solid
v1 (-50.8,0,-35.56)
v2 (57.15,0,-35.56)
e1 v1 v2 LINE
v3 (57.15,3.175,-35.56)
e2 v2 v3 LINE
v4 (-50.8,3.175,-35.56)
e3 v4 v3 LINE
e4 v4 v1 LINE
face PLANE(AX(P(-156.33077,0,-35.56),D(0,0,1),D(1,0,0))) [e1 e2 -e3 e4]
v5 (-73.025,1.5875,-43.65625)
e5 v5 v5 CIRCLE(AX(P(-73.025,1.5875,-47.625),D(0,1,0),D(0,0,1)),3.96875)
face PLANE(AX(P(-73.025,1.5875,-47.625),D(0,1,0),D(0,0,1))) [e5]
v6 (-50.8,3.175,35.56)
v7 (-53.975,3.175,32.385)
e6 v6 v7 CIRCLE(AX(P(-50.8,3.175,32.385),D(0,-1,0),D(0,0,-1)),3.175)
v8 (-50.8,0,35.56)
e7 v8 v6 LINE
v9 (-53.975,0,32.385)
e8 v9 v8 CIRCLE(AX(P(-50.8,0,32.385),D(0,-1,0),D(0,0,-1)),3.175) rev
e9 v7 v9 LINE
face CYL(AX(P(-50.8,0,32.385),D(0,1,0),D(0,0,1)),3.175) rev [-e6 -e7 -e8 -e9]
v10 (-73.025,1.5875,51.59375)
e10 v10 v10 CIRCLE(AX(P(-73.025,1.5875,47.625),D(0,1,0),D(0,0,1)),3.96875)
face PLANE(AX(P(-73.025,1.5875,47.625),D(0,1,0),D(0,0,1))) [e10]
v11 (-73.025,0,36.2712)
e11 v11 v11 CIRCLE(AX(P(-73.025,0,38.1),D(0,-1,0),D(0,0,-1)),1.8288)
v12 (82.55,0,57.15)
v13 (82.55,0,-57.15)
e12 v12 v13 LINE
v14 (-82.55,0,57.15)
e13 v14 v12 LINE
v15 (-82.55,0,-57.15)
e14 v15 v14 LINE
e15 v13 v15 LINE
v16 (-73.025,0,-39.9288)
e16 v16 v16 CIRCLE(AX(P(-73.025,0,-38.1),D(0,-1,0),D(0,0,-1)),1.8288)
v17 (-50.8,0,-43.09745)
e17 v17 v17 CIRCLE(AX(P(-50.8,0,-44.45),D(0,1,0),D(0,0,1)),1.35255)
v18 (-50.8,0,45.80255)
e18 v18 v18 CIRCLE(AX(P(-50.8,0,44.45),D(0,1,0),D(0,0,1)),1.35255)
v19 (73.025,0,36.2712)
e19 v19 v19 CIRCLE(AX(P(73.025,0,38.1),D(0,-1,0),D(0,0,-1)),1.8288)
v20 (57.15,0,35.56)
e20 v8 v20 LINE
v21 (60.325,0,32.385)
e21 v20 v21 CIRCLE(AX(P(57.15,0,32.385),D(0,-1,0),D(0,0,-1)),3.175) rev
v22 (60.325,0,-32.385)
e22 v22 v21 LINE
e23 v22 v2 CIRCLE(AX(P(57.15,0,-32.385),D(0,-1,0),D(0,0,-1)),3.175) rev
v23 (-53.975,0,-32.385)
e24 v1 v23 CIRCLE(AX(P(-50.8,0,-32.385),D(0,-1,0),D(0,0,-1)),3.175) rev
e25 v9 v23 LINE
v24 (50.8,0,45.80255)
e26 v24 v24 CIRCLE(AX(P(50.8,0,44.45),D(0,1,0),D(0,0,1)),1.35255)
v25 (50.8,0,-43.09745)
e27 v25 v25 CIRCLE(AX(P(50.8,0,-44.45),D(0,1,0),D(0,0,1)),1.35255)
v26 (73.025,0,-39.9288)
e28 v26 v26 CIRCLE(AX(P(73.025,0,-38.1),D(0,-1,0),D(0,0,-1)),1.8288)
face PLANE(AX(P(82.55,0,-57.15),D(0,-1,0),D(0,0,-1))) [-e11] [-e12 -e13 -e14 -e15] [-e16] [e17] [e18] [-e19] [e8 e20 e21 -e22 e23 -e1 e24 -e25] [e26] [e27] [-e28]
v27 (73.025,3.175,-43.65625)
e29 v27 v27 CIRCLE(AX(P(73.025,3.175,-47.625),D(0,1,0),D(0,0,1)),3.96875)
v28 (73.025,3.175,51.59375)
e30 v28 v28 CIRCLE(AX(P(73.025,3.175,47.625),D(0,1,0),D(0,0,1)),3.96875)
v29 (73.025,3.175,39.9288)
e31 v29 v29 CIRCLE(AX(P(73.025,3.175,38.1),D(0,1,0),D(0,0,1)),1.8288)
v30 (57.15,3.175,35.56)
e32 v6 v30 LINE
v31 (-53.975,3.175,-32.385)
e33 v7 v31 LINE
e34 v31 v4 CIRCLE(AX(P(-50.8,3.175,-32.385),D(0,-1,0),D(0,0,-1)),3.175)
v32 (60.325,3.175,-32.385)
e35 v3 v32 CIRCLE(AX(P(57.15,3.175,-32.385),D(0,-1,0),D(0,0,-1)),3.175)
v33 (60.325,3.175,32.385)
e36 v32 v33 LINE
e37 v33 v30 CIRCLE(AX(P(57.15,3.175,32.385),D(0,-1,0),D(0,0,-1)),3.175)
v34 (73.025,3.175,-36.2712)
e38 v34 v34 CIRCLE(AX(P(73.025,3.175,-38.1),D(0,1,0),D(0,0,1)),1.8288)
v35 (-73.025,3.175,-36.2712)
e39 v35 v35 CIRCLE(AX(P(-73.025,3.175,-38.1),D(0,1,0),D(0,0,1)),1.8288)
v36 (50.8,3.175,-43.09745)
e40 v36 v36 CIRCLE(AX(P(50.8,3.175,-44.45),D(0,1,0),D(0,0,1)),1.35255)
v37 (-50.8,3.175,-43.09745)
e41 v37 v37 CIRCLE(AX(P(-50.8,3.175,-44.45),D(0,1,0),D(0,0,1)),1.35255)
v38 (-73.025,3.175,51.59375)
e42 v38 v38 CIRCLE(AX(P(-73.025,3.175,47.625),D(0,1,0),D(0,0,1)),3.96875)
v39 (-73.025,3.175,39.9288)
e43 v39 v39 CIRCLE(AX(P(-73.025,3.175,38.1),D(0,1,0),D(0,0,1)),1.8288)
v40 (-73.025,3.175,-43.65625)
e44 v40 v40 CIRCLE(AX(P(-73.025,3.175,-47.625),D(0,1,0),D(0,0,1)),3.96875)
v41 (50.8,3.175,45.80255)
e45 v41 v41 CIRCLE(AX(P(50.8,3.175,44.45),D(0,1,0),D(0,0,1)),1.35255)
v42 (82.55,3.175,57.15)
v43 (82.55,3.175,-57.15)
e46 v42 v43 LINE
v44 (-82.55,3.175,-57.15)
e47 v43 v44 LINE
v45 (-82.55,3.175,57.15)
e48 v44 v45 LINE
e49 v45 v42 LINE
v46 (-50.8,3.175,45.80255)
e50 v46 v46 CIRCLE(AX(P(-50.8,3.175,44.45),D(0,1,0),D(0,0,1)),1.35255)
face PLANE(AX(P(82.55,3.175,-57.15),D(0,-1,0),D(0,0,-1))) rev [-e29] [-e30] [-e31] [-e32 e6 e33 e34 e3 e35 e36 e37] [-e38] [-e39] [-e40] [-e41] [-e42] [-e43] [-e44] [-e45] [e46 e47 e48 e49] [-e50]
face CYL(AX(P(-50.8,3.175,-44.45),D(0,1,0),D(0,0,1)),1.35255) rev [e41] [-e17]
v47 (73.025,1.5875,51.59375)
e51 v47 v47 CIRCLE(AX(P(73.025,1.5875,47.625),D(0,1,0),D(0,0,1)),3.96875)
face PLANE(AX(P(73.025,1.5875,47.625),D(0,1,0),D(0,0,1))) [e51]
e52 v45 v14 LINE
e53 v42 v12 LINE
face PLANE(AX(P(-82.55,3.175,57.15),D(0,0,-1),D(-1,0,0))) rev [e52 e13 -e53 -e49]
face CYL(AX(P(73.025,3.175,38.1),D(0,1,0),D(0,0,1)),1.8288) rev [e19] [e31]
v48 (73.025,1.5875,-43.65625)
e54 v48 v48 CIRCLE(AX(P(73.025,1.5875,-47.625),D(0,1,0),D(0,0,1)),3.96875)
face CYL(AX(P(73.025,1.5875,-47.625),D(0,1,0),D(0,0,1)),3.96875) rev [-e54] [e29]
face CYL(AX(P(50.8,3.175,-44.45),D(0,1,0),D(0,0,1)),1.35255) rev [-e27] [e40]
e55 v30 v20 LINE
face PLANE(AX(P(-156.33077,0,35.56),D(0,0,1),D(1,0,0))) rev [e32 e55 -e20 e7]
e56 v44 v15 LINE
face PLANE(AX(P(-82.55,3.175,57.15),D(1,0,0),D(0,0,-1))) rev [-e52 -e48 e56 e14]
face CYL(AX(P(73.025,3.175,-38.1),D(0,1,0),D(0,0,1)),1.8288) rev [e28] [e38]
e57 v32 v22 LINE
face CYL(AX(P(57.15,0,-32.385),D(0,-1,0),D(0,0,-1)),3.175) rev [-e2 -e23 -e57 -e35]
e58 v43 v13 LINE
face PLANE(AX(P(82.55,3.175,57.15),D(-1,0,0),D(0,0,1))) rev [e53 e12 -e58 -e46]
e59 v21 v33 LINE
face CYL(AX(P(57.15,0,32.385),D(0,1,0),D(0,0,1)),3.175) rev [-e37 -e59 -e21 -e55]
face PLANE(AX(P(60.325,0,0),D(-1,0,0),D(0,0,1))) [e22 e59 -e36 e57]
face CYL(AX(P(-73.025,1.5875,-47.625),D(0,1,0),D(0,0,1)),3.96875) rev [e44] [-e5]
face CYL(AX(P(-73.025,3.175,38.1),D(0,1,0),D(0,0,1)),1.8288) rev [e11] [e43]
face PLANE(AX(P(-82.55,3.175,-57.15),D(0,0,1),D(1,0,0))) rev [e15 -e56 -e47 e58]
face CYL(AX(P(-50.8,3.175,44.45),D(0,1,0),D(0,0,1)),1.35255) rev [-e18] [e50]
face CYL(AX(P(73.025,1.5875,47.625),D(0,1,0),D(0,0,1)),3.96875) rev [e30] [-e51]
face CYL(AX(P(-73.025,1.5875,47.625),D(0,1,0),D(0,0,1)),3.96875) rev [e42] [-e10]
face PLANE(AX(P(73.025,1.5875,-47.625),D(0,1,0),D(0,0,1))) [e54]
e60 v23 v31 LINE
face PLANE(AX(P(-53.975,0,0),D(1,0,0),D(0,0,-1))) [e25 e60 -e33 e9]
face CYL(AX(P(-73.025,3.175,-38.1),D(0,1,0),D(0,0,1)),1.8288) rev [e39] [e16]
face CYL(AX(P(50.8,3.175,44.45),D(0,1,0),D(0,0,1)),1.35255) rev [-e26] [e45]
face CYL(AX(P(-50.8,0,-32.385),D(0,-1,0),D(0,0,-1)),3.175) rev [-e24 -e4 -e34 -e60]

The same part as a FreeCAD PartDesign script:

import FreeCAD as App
import Part
import Sketcher
Q = App.Units.Quantity


def edges_at(feature, points):
    """Names of the edges that pass closest to the given points."""
    edges = feature.Shape.Edges
    near = lambda p: min(range(len(edges)), key=lambda i: edges[i].distToShape(Part.Vertex(*p))[0])
    return sorted({f"Edge{near(p) + 1}" for p in points})

doc = App.newDocument("Part")
body = doc.addObject("PartDesign::Body", "Body")

# Sketch on XZ plane
sketch1 = doc.addObject("Sketcher::SketchObject", "Sketch")
body.addObject(sketch1)
sketch1.AttachmentSupport = (doc.XZ_Plane, [""])
sketch1.MapMode = "FlatFace"
sketch1.addGeometry([
    Part.LineSegment(App.Vector(-83, -57, 0), App.Vector(-83, 57, 0)),
    Part.LineSegment(App.Vector(-83, 57, 0), App.Vector(83, 57, 0)),
    Part.LineSegment(App.Vector(83, 57, 0), App.Vector(83, -57, 0)),
    Part.LineSegment(App.Vector(83, -57, 0), App.Vector(-83, -57, 0)),
], False)
sketch1.addConstraint([
    Sketcher.Constraint("Coincident", 0, 2, 1, 1),
    Sketcher.Constraint("Coincident", 1, 2, 2, 1),
    Sketcher.Constraint("Coincident", 2, 2, 3, 1),
    Sketcher.Constraint("Coincident", 3, 2, 0, 1),
    Sketcher.Constraint("Vertical", 0),
    Sketcher.Constraint("Horizontal", 1),
    Sketcher.Constraint("Vertical", 2),
    Sketcher.Constraint("Horizontal", 3),
    Sketcher.Constraint("Symmetric", 0, 2, 2, 2, -1, 1),
    Sketcher.Constraint("DistanceX", 1, 1, 1, 2, Q("6.5 in")),
    Sketcher.Constraint("DistanceY", 0, 1, 0, 2, Q("4.5 in")),
])
pad1 = doc.addObject("PartDesign::Pad", "Pad")
body.addObject(pad1)
pad1.Profile = sketch1
pad1.Length = Q("0.125 in")
pad1.Reversed = True

# Sketch on XZ plane
sketch2 = doc.addObject("Sketcher::SketchObject", "Sketch001")
body.addObject(sketch2)
sketch2.AttachmentSupport = (doc.XZ_Plane, [""])
sketch2.MapMode = "FlatFace"
sketch2.AttachmentOffset = App.Placement(App.Vector(0, 0, -0.125 * 25.4), App.Rotation())
sketch2.addGeometry([
    Part.Circle(App.Vector(-73, -47.6, 0), App.Vector(0, 0, 1), 4),
    Part.Circle(App.Vector(-73, 47.6, 0), App.Vector(0, 0, 1), 4),
    Part.Circle(App.Vector(73, -47.6, 0), App.Vector(0, 0, 1), 4),
    Part.Circle(App.Vector(73, 47.6, 0), App.Vector(0, 0, 1), 4),
], False)
sketch2.addConstraint([
    Sketcher.Constraint("Equal", 0, 1),
    Sketcher.Constraint("Equal", 1, 2),
    Sketcher.Constraint("Equal", 2, 3),
    Sketcher.Constraint("Symmetric", 1, 3, 2, 3, -1, 1),
    Sketcher.Constraint("Symmetric", 0, 3, 3, 3, -1, 1),
    Sketcher.Constraint("Symmetric", 0, 3, 2, 3, -2),
    Sketcher.Constraint("Diameter", 0, Q("0.3125 in")),
    Sketcher.Constraint("DistanceY", 0, 3, 1, 3, Q("3.75 in")),
    Sketcher.Constraint("DistanceX", 0, 3, 2, 3, Q("5.75 in")),
])
pocket1 = doc.addObject("PartDesign::Pocket", "Pocket")
body.addObject(pocket1)
pocket1.Profile = sketch2
pocket1.Length = Q("0.0625 in")
pocket1.Reversed = True

# Sketch on XZ plane
sketch3 = doc.addObject("Sketcher::SketchObject", "Sketch002")
body.addObject(sketch3)
sketch3.AttachmentSupport = (doc.XZ_Plane, [""])
sketch3.MapMode = "FlatFace"
sketch3.AttachmentOffset = App.Placement(App.Vector(0, 0, -0.125 * 25.4), App.Rotation())
sketch3.addGeometry([
    Part.Circle(App.Vector(-50.8, -44.5, 0), App.Vector(0, 0, 1), 1.4),
    Part.Circle(App.Vector(50.8, -44.5, 0), App.Vector(0, 0, 1), 1.4),
    Part.Circle(App.Vector(50.8, 44.5, 0), App.Vector(0, 0, 1), 1.4),
    Part.Circle(App.Vector(-50.8, 44.5, 0), App.Vector(0, 0, 1), 1.4),
], False)
sketch3.addConstraint([
    Sketcher.Constraint("Equal", 0, 1),
    Sketcher.Constraint("Equal", 1, 2),
    Sketcher.Constraint("Equal", 2, 3),
    Sketcher.Constraint("Symmetric", 0, 3, 2, 3, -1, 1),
    Sketcher.Constraint("Symmetric", 1, 3, 3, 3, -1, 1),
    Sketcher.Constraint("Symmetric", 0, 3, 1, 3, -2),
    Sketcher.Constraint("DistanceX", 0, 3, -1, 1, Q("2 in")),
    Sketcher.Constraint("Diameter", 0, Q("0.1065 in")),
    Sketcher.Constraint("DistanceY", 1, 3, 2, 3, Q("3.5 in")),
])
doc.recompute()
hole = doc.addObject("PartDesign::Hole", "Hole")
body.addObject(hole)
hole.Profile = sketch3
hole.ThreadType = "None"
hole.Diameter = Q("0.1065 in")
hole.DepthType = "ThroughAll"
hole.Reversed = True

# Sketch on XZ plane
sketch4 = doc.addObject("Sketcher::SketchObject", "Sketch003")
body.addObject(sketch4)
sketch4.AttachmentSupport = (doc.XZ_Plane, [""])
sketch4.MapMode = "FlatFace"
sketch4.AttachmentOffset = App.Placement(App.Vector(0, 0, -0.125 * 25.4), App.Rotation())
sketch4.addGeometry([
    Part.LineSegment(App.Vector(-54, -36, 0), App.Vector(-54, 36, 0)),
    Part.LineSegment(App.Vector(-54, 36, 0), App.Vector(60, 36, 0)),
    Part.LineSegment(App.Vector(60, 36, 0), App.Vector(60, -36, 0)),
    Part.LineSegment(App.Vector(60, -36, 0), App.Vector(-54, -36, 0)),
], False)
sketch4.addConstraint([
    Sketcher.Constraint("Coincident", 0, 2, 1, 1),
    Sketcher.Constraint("Coincident", 1, 2, 2, 1),
    Sketcher.Constraint("Coincident", 2, 2, 3, 1),
    Sketcher.Constraint("Coincident", 3, 2, 0, 1),
    Sketcher.Constraint("Vertical", 0),
    Sketcher.Constraint("Horizontal", 1),
    Sketcher.Constraint("Vertical", 2),
    Sketcher.Constraint("Horizontal", 3),
    Sketcher.Constraint("DistanceX", 1, 1, 1, 2, Q("4.5 in")),
    Sketcher.Constraint("DistanceY", 0, 1, 0, 2, Q("2.8 in")),
    Sketcher.Constraint("DistanceY", -1, 1, 0, 2, Q("1.4 in")),
    Sketcher.Constraint("DistanceX", 0, 2, -1, 1, Q("2.125 in")),
])
pocket2 = doc.addObject("PartDesign::Pocket", "Pocket001")
body.addObject(pocket2)
pocket2.Profile = sketch4
pocket2.Type = "ThroughAll"
pocket2.Reversed = True
doc.recompute()

fillet = doc.addObject("PartDesign::Fillet", "Fillet")
body.addObject(fillet)
fillet.Base = (pocket2, edges_at(pocket2, [
    (60.325, 1.587, 35.56),
    (-53.975, 1.587, 35.56),
    (-53.975, 1.587, -35.56),
    (60.325, 1.587, -35.56),
]))
fillet.Radius = Q("0.125 in")

# Sketch on XZ plane
sketch5 = doc.addObject("Sketcher::SketchObject", "Sketch004")
body.addObject(sketch5)
sketch5.AttachmentSupport = (doc.XZ_Plane, [""])
sketch5.MapMode = "FlatFace"
sketch5.AttachmentOffset = App.Placement(App.Vector(0, 0, -0.125 * 25.4), App.Rotation())
sketch5.addGeometry([
    Part.Circle(App.Vector(-73, -38.1, 0), App.Vector(0, 0, 1), 1.8),
    Part.Circle(App.Vector(-73, 38.1, 0), App.Vector(0, 0, 1), 1.8),
    Part.Circle(App.Vector(73, -38.1, 0), App.Vector(0, 0, 1), 1.8),
    Part.Circle(App.Vector(73, 38.1, 0), App.Vector(0, 0, 1), 1.8),
], False)
sketch5.addConstraint([
    Sketcher.Constraint("Equal", 0, 1),
    Sketcher.Constraint("Equal", 1, 2),
    Sketcher.Constraint("Equal", 2, 3),
    Sketcher.Constraint("Symmetric", 1, 3, 2, 3, -1, 1),
    Sketcher.Constraint("Symmetric", 0, 3, 3, 3, -1, 1),
    Sketcher.Constraint("Symmetric", 0, 3, 2, 3, -2),
    Sketcher.Constraint("Diameter", 0, Q("0.144 in")),
    Sketcher.Constraint("DistanceY", 0, 3, 1, 3, Q("3 in")),
    Sketcher.Constraint("DistanceX", 0, 3, 2, 3, Q("5.75 in")),
])
doc.recompute()
hole2 = doc.addObject("PartDesign::Hole", "Hole001")
body.addObject(hole2)
hole2.Profile = sketch5
hole2.ThreadType = "None"
hole2.Diameter = Q("0.144 in")
hole2.DepthType = "Dimension"
hole2.Depth = Q("0.13 in")
hole2.DrillPoint = "Angled"
hole2.DrillPointAngle = 118
hole2.Reversed = True

doc.recompute()
